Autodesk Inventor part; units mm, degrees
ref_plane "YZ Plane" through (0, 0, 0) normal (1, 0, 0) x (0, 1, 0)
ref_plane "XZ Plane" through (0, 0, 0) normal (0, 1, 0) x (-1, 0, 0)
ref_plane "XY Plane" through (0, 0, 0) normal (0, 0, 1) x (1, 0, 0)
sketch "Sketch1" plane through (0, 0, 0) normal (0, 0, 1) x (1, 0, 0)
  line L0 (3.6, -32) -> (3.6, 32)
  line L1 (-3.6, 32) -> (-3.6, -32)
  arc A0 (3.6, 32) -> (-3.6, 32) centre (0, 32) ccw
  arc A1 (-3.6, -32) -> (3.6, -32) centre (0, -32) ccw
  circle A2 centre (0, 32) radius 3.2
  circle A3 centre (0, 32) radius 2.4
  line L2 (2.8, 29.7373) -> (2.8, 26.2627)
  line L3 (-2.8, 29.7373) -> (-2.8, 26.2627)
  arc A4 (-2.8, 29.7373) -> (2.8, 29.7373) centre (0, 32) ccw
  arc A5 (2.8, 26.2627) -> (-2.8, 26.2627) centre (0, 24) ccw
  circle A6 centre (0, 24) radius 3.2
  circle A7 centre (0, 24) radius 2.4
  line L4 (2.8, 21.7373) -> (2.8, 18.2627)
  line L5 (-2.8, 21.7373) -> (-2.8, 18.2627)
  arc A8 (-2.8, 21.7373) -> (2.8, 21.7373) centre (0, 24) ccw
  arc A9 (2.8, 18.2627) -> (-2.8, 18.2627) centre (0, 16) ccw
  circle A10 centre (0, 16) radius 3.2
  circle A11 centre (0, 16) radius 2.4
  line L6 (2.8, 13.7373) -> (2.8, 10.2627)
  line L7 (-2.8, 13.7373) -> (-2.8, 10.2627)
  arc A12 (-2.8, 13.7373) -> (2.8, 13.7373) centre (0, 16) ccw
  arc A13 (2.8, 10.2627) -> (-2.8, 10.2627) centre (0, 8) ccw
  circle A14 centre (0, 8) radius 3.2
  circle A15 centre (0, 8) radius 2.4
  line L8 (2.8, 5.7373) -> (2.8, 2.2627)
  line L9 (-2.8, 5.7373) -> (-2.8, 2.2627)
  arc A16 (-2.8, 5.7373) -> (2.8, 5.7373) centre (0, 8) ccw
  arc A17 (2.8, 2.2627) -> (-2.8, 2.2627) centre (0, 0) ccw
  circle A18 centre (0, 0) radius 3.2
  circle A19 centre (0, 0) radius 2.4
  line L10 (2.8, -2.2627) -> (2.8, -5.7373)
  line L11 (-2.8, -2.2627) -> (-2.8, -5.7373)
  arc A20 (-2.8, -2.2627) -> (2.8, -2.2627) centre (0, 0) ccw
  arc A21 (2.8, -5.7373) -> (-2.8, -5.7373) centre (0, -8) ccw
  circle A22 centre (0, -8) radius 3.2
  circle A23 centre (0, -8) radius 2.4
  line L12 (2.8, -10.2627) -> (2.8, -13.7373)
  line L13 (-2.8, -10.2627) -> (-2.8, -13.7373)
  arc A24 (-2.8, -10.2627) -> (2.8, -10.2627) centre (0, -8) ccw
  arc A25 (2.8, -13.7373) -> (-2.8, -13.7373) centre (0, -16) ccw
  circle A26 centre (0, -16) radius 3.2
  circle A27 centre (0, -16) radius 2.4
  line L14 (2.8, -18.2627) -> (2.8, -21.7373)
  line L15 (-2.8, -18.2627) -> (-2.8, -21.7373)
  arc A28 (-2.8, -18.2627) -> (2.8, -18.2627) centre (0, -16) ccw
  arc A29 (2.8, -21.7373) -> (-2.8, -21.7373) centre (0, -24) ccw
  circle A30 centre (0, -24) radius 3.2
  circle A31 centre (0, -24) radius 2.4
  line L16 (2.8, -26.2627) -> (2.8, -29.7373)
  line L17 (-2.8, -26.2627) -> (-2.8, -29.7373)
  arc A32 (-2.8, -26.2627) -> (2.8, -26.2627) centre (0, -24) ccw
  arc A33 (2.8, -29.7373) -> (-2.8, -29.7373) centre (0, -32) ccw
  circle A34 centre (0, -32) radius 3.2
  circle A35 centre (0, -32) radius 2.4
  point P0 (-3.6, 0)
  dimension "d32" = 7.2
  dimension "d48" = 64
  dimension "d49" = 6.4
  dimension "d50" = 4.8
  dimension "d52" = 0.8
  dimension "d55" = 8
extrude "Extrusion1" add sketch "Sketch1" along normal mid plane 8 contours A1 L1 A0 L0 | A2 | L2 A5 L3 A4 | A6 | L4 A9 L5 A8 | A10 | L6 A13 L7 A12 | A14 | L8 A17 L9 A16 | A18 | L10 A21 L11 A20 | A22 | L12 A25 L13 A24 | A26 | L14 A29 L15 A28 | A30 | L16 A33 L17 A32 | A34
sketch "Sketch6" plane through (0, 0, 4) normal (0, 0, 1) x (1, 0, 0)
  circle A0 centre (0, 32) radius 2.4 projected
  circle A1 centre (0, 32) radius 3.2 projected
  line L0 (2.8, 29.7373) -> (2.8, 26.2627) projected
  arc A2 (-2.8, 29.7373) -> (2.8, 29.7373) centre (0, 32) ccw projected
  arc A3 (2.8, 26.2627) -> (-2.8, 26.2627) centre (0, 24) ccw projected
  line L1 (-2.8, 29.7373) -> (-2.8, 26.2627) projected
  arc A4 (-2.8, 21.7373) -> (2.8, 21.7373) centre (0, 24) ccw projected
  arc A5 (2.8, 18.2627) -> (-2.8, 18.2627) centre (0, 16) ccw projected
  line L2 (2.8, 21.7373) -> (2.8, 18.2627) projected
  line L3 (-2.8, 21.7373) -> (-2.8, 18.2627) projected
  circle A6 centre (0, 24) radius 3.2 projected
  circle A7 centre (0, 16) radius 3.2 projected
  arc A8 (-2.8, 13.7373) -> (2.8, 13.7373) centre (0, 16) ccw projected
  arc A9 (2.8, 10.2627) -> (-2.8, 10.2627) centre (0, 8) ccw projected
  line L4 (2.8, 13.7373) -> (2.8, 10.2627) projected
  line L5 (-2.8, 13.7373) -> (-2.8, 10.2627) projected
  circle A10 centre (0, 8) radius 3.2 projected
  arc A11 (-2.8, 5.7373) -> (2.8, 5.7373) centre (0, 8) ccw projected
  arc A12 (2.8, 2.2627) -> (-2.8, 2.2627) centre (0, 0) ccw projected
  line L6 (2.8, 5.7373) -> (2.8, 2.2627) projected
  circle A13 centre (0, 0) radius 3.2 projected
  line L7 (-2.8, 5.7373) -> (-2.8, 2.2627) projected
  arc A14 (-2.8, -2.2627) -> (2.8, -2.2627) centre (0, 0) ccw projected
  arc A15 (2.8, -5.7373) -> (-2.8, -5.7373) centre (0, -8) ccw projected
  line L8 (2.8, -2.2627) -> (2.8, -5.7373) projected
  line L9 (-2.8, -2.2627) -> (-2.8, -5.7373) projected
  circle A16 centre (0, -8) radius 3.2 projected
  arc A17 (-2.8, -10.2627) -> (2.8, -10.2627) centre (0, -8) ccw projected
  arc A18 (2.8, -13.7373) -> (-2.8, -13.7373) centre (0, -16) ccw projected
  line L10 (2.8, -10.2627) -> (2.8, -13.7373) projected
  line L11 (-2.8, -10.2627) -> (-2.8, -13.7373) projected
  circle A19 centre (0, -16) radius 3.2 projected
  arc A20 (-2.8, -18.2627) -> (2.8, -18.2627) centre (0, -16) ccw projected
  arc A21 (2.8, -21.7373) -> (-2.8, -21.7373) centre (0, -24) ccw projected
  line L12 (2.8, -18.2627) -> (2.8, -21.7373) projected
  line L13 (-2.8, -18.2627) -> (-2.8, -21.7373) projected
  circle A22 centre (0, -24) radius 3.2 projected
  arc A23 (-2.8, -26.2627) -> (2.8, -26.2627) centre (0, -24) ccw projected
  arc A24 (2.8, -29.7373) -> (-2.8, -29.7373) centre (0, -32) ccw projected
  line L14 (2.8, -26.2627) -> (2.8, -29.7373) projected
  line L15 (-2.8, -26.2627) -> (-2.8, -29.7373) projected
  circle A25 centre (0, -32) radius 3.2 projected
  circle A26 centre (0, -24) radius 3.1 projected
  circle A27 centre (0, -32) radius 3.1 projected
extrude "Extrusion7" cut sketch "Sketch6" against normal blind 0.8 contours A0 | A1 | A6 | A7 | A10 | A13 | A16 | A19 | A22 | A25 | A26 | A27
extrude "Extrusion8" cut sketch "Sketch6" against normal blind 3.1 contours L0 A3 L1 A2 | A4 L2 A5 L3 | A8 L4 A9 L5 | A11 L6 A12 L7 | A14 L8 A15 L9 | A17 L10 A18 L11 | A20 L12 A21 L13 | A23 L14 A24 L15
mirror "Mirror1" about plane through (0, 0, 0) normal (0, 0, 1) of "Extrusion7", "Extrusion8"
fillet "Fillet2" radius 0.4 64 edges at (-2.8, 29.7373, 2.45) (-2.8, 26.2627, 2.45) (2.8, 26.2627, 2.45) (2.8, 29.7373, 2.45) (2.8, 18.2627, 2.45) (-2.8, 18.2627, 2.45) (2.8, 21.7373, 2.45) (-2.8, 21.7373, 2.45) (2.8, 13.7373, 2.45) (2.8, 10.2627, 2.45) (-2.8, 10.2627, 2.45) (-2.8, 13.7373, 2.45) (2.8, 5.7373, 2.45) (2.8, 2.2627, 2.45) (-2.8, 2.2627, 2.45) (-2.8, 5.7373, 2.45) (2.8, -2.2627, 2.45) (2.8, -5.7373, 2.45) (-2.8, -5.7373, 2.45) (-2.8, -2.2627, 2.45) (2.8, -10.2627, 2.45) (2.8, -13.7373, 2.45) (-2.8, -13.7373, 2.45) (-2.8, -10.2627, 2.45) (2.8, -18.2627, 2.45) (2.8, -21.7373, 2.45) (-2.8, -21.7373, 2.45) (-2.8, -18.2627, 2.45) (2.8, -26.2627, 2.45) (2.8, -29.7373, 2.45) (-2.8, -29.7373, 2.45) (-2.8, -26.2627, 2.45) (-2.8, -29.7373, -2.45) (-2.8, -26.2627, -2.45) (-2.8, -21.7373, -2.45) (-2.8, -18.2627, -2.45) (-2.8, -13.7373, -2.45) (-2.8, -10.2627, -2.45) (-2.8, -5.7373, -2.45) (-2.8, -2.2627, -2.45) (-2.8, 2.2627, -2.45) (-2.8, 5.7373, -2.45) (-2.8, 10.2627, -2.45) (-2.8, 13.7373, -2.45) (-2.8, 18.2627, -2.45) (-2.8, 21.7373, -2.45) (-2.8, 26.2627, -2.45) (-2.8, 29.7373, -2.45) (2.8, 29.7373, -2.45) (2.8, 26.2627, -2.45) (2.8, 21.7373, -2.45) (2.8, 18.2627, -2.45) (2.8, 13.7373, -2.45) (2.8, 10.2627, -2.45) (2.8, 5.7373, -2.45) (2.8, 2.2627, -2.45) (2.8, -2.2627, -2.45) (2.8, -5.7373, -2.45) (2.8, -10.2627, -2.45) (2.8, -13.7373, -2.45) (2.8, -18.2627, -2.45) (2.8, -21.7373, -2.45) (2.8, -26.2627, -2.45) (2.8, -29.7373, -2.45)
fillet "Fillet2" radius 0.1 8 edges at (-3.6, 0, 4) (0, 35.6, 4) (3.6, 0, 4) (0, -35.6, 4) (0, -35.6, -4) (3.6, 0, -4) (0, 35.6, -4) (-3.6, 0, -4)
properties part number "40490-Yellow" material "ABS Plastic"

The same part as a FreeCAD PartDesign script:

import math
import FreeCAD as App
import Part
import Sketcher
from FreeCAD import Vector
Q = App.Units.Quantity


def edges_at(feature, points):
    """Names of the edges that pass closest to the given points."""
    edges = feature.Shape.Edges
    near = lambda p: min(range(len(edges)), key=lambda i: edges[i].distToShape(Part.Vertex(*p))[0])
    return sorted({f"Edge{near(p) + 1}" for p in points})

doc = App.newDocument("Part")
params = doc.addObject("Spreadsheet::Sheet", "Params")
for row, (alias, value) in enumerate([
    ("sketch1_diameter", "4.8 mm"),
    ("sketch1_radius", "3.6 mm"),
    ("sketch1_height", "64 mm"),
    ("pad1_length", "8 mm"),
    ("sketch2_diameter", "6.4 mm"),
    ("pocket1_length", "0.8 mm"),
    ("sketch3_radius", "3.6 mm"),
    ("pocket2_length", "3.1 mm"),
    ("fillet_radius", "0.4 mm"),
    ("fillet2_radius", "0.1 mm"),
], start=1):
    params.set(f"A{row}", alias)
    params.set(f"B{row}", "=" + value)
    params.setAlias(f"B{row}", alias)

body = doc.addObject("PartDesign::Body", "Body")

# Sketch on XY plane
sketch1 = body.newObject("Sketcher::SketchObject", "Sketch")
sketch1.AttachmentSupport = (doc.getObject("XY_Plane"), [""])
sketch1.MapMode = "FlatFace"
sketch1.addGeometry([
    Part.ArcOfCircle(Part.Circle(Vector(0, -32, 0), Vector(0, 0, 1), 3.6), math.radians(180), math.radians(360)),  # 0
    Part.LineSegment(Vector(3.6, -32, 0), Vector(3.6, 32, 0)),  # 1
    Part.ArcOfCircle(Part.Circle(Vector(0, 32, 0), Vector(0, 0, 1), 3.6), math.radians(0), math.radians(180)),  # 2
    Part.LineSegment(Vector(-3.6, 32, 0), Vector(-3.6, -32, 0)),  # 3
    Part.Circle(Vector(0, -32, 0), Vector(0, 0, 1), 2.4),  # 4
    Part.Circle(Vector(0, -24, 0), Vector(0, 0, 1), 2.4),  # 5
    Part.Circle(Vector(0, -16, 0), Vector(0, 0, 1), 2.4),  # 6
    Part.Circle(Vector(0, -8, 0), Vector(0, 0, 1), 2.4),  # 7
    Part.Circle(Vector(0, 0, 0), Vector(0, 0, 1), 2.4),  # 8
    Part.Circle(Vector(0, 8, 0), Vector(0, 0, 1), 2.4),  # 9
    Part.Circle(Vector(0, 16, 0), Vector(0, 0, 1), 2.4),  # 10
    Part.Circle(Vector(0, 24, 0), Vector(0, 0, 1), 2.4),  # 11
    Part.Circle(Vector(0, 32, 0), Vector(0, 0, 1), 2.4),  # 12
], False)
sketch1.addConstraint([
    Sketcher.Constraint("Tangent", 0, 2, 1, 1),
    Sketcher.Constraint("Tangent", 1, 2, 2, 1),
    Sketcher.Constraint("Tangent", 2, 2, 3, 1),
    Sketcher.Constraint("Tangent", 3, 2, 0, 1),
    Sketcher.Constraint("Vertical", 1),
    Sketcher.Constraint("Vertical", 3),
    Sketcher.Constraint("Coincident", 8, 3, -1, 1),
    Sketcher.Constraint("Coincident", 4, 3, 0, 3),
    Sketcher.Constraint("Coincident", 12, 3, 2, 3),
    Sketcher.Constraint("Equal", 4, 5),
    Sketcher.Constraint("Equal", 5, 6),
    Sketcher.Constraint("Equal", 6, 7),
    Sketcher.Constraint("Equal", 7, 8),
    Sketcher.Constraint("Equal", 8, 9),
    Sketcher.Constraint("Equal", 9, 10),
    Sketcher.Constraint("Equal", 10, 11),
    Sketcher.Constraint("Equal", 11, 12),
    Sketcher.Constraint("Symmetric", 0, 3, 2, 3, -1, 1),
    Sketcher.Constraint("Symmetric", 7, 3, 9, 3, -1, 1),
    Sketcher.Constraint("Symmetric", 6, 3, 10, 3, -1, 1),
    Sketcher.Constraint("Symmetric", 5, 3, 11, 3, -1, 1),
    Sketcher.Constraint("PointOnObject", 5, 3, -2),
    Sketcher.Constraint("PointOnObject", 6, 3, -2),
    Sketcher.Constraint("PointOnObject", 7, 3, -2),
    Sketcher.Constraint("Diameter", 4, Q("4.8 mm")),
    Sketcher.Constraint("Radius", 0, Q("3.6 mm")),
    Sketcher.Constraint("DistanceY", 1, 1, 1, 2, Q("64 mm")),
    Sketcher.Constraint("DistanceY", 7, 3, -1, 1, Q("8 mm")),
    Sketcher.Constraint("DistanceY", 0, 3, 5, 3, Q("8 mm")),
    Sketcher.Constraint("DistanceY", 5, 3, 6, 3, Q("8 mm")),
])
sketch1.setExpression("Constraints[24]", "Params.sketch1_diameter")
sketch1.setExpression("Constraints[25]", "Params.sketch1_radius")
sketch1.setExpression("Constraints[26]", "Params.sketch1_height")
pad1 = body.newObject("PartDesign::Pad", "Pad")
pad1.Profile = sketch1
pad1.setExpression("Length", "Params.pad1_length")
pad1.Midplane = True

# Sketch on XY plane
sketch2 = body.newObject("Sketcher::SketchObject", "Sketch001")
sketch2.AttachmentSupport = (doc.getObject("XY_Plane"), [""])
sketch2.MapMode = "FlatFace"
sketch2.AttachmentOffset = App.Placement(Vector(0, 0, 4), App.Rotation())
sketch2.addGeometry([
    Part.Circle(Vector(0, 32, 0), Vector(0, 0, 1), 3.2),  # 0
    Part.Circle(Vector(0, 24, 0), Vector(0, 0, 1), 3.2),  # 1
    Part.Circle(Vector(0, 16, 0), Vector(0, 0, 1), 3.2),  # 2
    Part.Circle(Vector(0, 8, 0), Vector(0, 0, 1), 3.2),  # 3
    Part.Circle(Vector(0, 0, 0), Vector(0, 0, 1), 3.2),  # 4
    Part.Circle(Vector(0, -8, 0), Vector(0, 0, 1), 3.2),  # 5
    Part.Circle(Vector(0, -16, 0), Vector(0, 0, 1), 3.2),  # 6
    Part.Circle(Vector(0, -24, 0), Vector(0, 0, 1), 3.2),  # 7
    Part.Circle(Vector(0, -32, 0), Vector(0, 0, 1), 3.2),  # 8
], False)
sketch2.addConstraint([
    Sketcher.Constraint("Coincident", 4, 3, -1, 1),
    Sketcher.Constraint("Equal", 0, 1),
    Sketcher.Constraint("Equal", 1, 2),
    Sketcher.Constraint("Equal", 2, 3),
    Sketcher.Constraint("Equal", 3, 4),
    Sketcher.Constraint("Equal", 4, 5),
    Sketcher.Constraint("Equal", 5, 6),
    Sketcher.Constraint("Equal", 6, 7),
    Sketcher.Constraint("Equal", 7, 8),
    Sketcher.Constraint("Symmetric", 3, 3, 5, 3, -1, 1),
    Sketcher.Constraint("Symmetric", 2, 3, 6, 3, -1, 1),
    Sketcher.Constraint("Symmetric", 1, 3, 7, 3, -1, 1),
    Sketcher.Constraint("Symmetric", 0, 3, 8, 3, -1, 1),
    Sketcher.Constraint("PointOnObject", 0, 3, -2),
    Sketcher.Constraint("PointOnObject", 1, 3, -2),
    Sketcher.Constraint("PointOnObject", 2, 3, -2),
    Sketcher.Constraint("PointOnObject", 3, 3, -2),
    Sketcher.Constraint("Diameter", 0, Q("6.4 mm")),
    Sketcher.Constraint("DistanceY", -1, 1, 0, 3, Q("32 mm")),
    Sketcher.Constraint("DistanceY", -1, 1, 1, 3, Q("24 mm")),
    Sketcher.Constraint("DistanceY", -1, 1, 2, 3, Q("16 mm")),
    Sketcher.Constraint("DistanceY", -1, 1, 3, 3, Q("8 mm")),
])
sketch2.setExpression("Constraints[17]", "Params.sketch2_diameter")
pocket1 = body.newObject("PartDesign::Pocket", "Pocket")
pocket1.Profile = sketch2
pocket1.setExpression("Length", "Params.pocket1_length")

# Sketch on XY plane
sketch3 = body.newObject("Sketcher::SketchObject", "Sketch002")
sketch3.AttachmentSupport = (doc.getObject("XY_Plane"), [""])
sketch3.MapMode = "FlatFace"
sketch3.AttachmentOffset = App.Placement(Vector(0, 0, 4), App.Rotation())
sketch3.addGeometry([
    Part.LineSegment(Vector(2.8, 26.3, 0), Vector(2.8, 29.7, 0)),  # 0
    Part.ArcOfCircle(Part.Circle(Vector(0, 32, 0), Vector(0, 0, 1), 3.6), math.radians(-141), math.radians(-39)),  # 1
    Part.LineSegment(Vector(-2.8, 29.7, 0), Vector(-2.8, 26.3, 0)),  # 2
    Part.ArcOfCircle(Part.Circle(Vector(0, 24, 0), Vector(0, 0, 1), 3.6), math.radians(39), math.radians(141)),  # 3
    Part.ArcOfCircle(Part.Circle(Vector(0, 24, 0), Vector(0, 0, 1), 3.6), math.radians(-141), math.radians(-39)),  # 4
    Part.LineSegment(Vector(-2.8, 21.7, 0), Vector(-2.8, 18.3, 0)),  # 5
    Part.ArcOfCircle(Part.Circle(Vector(0, 16, 0), Vector(0, 0, 1), 3.6), math.radians(39), math.radians(141)),  # 6
    Part.LineSegment(Vector(2.8, 18.3, 0), Vector(2.8, 21.7, 0)),  # 7
    Part.ArcOfCircle(Part.Circle(Vector(0, 16, 0), Vector(0, 0, 1), 3.6), math.radians(-141), math.radians(-39)),  # 8
    Part.LineSegment(Vector(-2.8, 13.7, 0), Vector(-2.8, 10.3, 0)),  # 9
    Part.ArcOfCircle(Part.Circle(Vector(0, 8, 0), Vector(0, 0, 1), 3.6), math.radians(39), math.radians(141)),  # 10
    Part.LineSegment(Vector(2.8, 10.3, 0), Vector(2.8, 13.7, 0)),  # 11
    Part.ArcOfCircle(Part.Circle(Vector(0, 8, 0), Vector(0, 0, 1), 3.6), math.radians(-141), math.radians(-39)),  # 12
    Part.LineSegment(Vector(-2.8, 5.7, 0), Vector(-2.8, 2.3, 0)),  # 13
    Part.ArcOfCircle(Part.Circle(Vector(0, 0, 0), Vector(0, 0, 1), 3.6), math.radians(39), math.radians(141)),  # 14
    Part.LineSegment(Vector(2.8, 2.3, 0), Vector(2.8, 5.7, 0)),  # 15
    Part.ArcOfCircle(Part.Circle(Vector(0, 0, 0), Vector(0, 0, 1), 3.6), math.radians(-141), math.radians(-39)),  # 16
    Part.LineSegment(Vector(-2.8, -2.3, 0), Vector(-2.8, -5.7, 0)),  # 17
    Part.ArcOfCircle(Part.Circle(Vector(0, -8, 0), Vector(0, 0, 1), 3.6), math.radians(39), math.radians(141)),  # 18
    Part.LineSegment(Vector(2.8, -5.7, 0), Vector(2.8, -2.3, 0)),  # 19
    Part.ArcOfCircle(Part.Circle(Vector(0, -8, 0), Vector(0, 0, 1), 3.6), math.radians(-141), math.radians(-39)),  # 20
    Part.LineSegment(Vector(-2.8, -10.3, 0), Vector(-2.8, -13.7, 0)),  # 21
    Part.ArcOfCircle(Part.Circle(Vector(0, -16, 0), Vector(0, 0, 1), 3.6), math.radians(39), math.radians(141)),  # 22
    Part.LineSegment(Vector(2.8, -13.7, 0), Vector(2.8, -10.3, 0)),  # 23
    Part.ArcOfCircle(Part.Circle(Vector(0, -16, 0), Vector(0, 0, 1), 3.6), math.radians(-141), math.radians(-39)),  # 24
    Part.LineSegment(Vector(-2.8, -18.3, 0), Vector(-2.8, -21.7, 0)),  # 25
    Part.ArcOfCircle(Part.Circle(Vector(0, -24, 0), Vector(0, 0, 1), 3.6), math.radians(39), math.radians(141)),  # 26
    Part.LineSegment(Vector(2.8, -21.7, 0), Vector(2.8, -18.3, 0)),  # 27
    Part.ArcOfCircle(Part.Circle(Vector(0, -24, 0), Vector(0, 0, 1), 3.6), math.radians(-141), math.radians(-39)),  # 28
    Part.LineSegment(Vector(-2.8, -26.3, 0), Vector(-2.8, -29.7, 0)),  # 29
    Part.ArcOfCircle(Part.Circle(Vector(0, -32, 0), Vector(0, 0, 1), 3.6), math.radians(39), math.radians(141)),  # 30
    Part.LineSegment(Vector(2.8, -29.7, 0), Vector(2.8, -26.3, 0)),  # 31
], False)
sketch3.addConstraint([
    Sketcher.Constraint("Coincident", 0, 2, 1, 2),
    Sketcher.Constraint("Coincident", 1, 1, 2, 1),
    Sketcher.Constraint("Coincident", 2, 2, 3, 2),
    Sketcher.Constraint("Coincident", 3, 1, 0, 1),
    Sketcher.Constraint("Coincident", 4, 1, 5, 1),
    Sketcher.Constraint("Coincident", 5, 2, 6, 2),
    Sketcher.Constraint("Coincident", 6, 1, 7, 1),
    Sketcher.Constraint("Coincident", 7, 2, 4, 2),
    Sketcher.Constraint("Coincident", 8, 1, 9, 1),
    Sketcher.Constraint("Coincident", 9, 2, 10, 2),
    Sketcher.Constraint("Coincident", 10, 1, 11, 1),
    Sketcher.Constraint("Coincident", 11, 2, 8, 2),
    Sketcher.Constraint("Coincident", 12, 1, 13, 1),
    Sketcher.Constraint("Coincident", 13, 2, 14, 2),
    Sketcher.Constraint("Coincident", 14, 1, 15, 1),
    Sketcher.Constraint("Coincident", 15, 2, 12, 2),
    Sketcher.Constraint("Coincident", 16, 1, 17, 1),
    Sketcher.Constraint("Coincident", 17, 2, 18, 2),
    Sketcher.Constraint("Coincident", 18, 1, 19, 1),
    Sketcher.Constraint("Coincident", 19, 2, 16, 2),
    Sketcher.Constraint("Coincident", 20, 1, 21, 1),
    Sketcher.Constraint("Coincident", 21, 2, 22, 2),
    Sketcher.Constraint("Coincident", 22, 1, 23, 1),
    Sketcher.Constraint("Coincident", 23, 2, 20, 2),
    Sketcher.Constraint("Coincident", 24, 1, 25, 1),
    Sketcher.Constraint("Coincident", 25, 2, 26, 2),
    Sketcher.Constraint("Coincident", 26, 1, 27, 1),
    Sketcher.Constraint("Coincident", 27, 2, 24, 2),
    Sketcher.Constraint("Coincident", 28, 1, 29, 1),
    Sketcher.Constraint("Coincident", 29, 2, 30, 2),
    Sketcher.Constraint("Coincident", 30, 1, 31, 1),
    Sketcher.Constraint("Coincident", 31, 2, 28, 2),
    Sketcher.Constraint("Vertical", 0),
    Sketcher.Constraint("Vertical", 2),
    Sketcher.Constraint("Vertical", 5),
    Sketcher.Constraint("Vertical", 7),
    Sketcher.Constraint("Vertical", 9),
    Sketcher.Constraint("Vertical", 11),
    Sketcher.Constraint("Vertical", 13),
    Sketcher.Constraint("Vertical", 15),
    Sketcher.Constraint("Vertical", 17),
    Sketcher.Constraint("Vertical", 19),
    Sketcher.Constraint("Vertical", 21),
    Sketcher.Constraint("Vertical", 23),
    Sketcher.Constraint("Vertical", 25),
    Sketcher.Constraint("Vertical", 27),
    Sketcher.Constraint("Vertical", 29),
    Sketcher.Constraint("Vertical", 31),
    Sketcher.Constraint("Coincident", 14, 3, -1, 1),
    Sketcher.Constraint("Coincident", 16, 3, -1, 1),
    Sketcher.Constraint("Coincident", 4, 3, 3, 3),
    Sketcher.Constraint("Coincident", 8, 3, 6, 3),
    Sketcher.Constraint("Coincident", 12, 3, 10, 3),
    Sketcher.Constraint("Coincident", 20, 3, 18, 3),
    Sketcher.Constraint("Coincident", 24, 3, 22, 3),
    Sketcher.Constraint("Coincident", 28, 3, 26, 3),
    Sketcher.Constraint("Equal", 1, 3),
    Sketcher.Constraint("Equal", 3, 4),
    Sketcher.Constraint("Equal", 4, 6),
    Sketcher.Constraint("Equal", 6, 8),
    Sketcher.Constraint("Equal", 8, 10),
    Sketcher.Constraint("Equal", 10, 12),
    Sketcher.Constraint("Equal", 12, 14),
    Sketcher.Constraint("Equal", 14, 16),
    Sketcher.Constraint("Equal", 16, 18),
    Sketcher.Constraint("Equal", 18, 20),
    Sketcher.Constraint("Equal", 20, 22),
    Sketcher.Constraint("Equal", 22, 24),
    Sketcher.Constraint("Equal", 24, 26),
    Sketcher.Constraint("Equal", 26, 28),
    Sketcher.Constraint("Equal", 28, 30),
    Sketcher.Constraint("Symmetric", 10, 3, 18, 3, -1, 1),
    Sketcher.Constraint("Symmetric", 6, 3, 22, 3, -1, 1),
    Sketcher.Constraint("Symmetric", 3, 3, 26, 3, -1, 1),
    Sketcher.Constraint("Symmetric", 1, 3, 30, 3, -1, 1),
    Sketcher.Constraint("Symmetric", 0, 2, 1, 1, -2),
    Sketcher.Constraint("Symmetric", 5, 2, 6, 1, -2),
    Sketcher.Constraint("Symmetric", 9, 2, 10, 1, -2),
    Sketcher.Constraint("Symmetric", 25, 2, 26, 1, -2),
    Sketcher.Constraint("Horizontal", 13, 2, 14, 1),
    Sketcher.Constraint("Horizontal", 17, 2, 18, 1),
    Sketcher.Constraint("Horizontal", 21, 2, 22, 1),
    Sketcher.Constraint("Horizontal", 29, 2, 30, 1),
    Sketcher.Constraint("Vertical", 2, 2, 4, 1),
    Sketcher.Constraint("Vertical", 5, 2, 8, 1),
    Sketcher.Constraint("Vertical", 9, 2, 12, 1),
    Sketcher.Constraint("Vertical", 13, 2, 16, 1),
    Sketcher.Constraint("Vertical", 17, 2, 20, 1),
    Sketcher.Constraint("Vertical", 21, 2, 24, 1),
    Sketcher.Constraint("Vertical", 25, 2, 28, 1),
    Sketcher.Constraint("Equal", 2, 5),
    Sketcher.Constraint("Equal", 7, 9),
    Sketcher.Constraint("Equal", 11, 13),
    Sketcher.Constraint("Radius", 1, Q("3.6 mm")),
    Sketcher.Constraint("DistanceY", -1, 1, 1, 3, Q("32 mm")),
    Sketcher.Constraint("DistanceX", -1, 1, 0, 2, Q("2.8 mm")),
])
sketch3.setExpression("Constraints[93]", "Params.sketch3_radius")
pocket2 = body.newObject("PartDesign::Pocket", "Pocket001")
pocket2.Profile = sketch3
pocket2.setExpression("Length", "Params.pocket2_length")
doc.recompute()

mirrored = body.newObject("PartDesign::Mirrored", "Mirrored")
mirrored.Originals = [pocket1, pocket2]
mirrored.MirrorPlane = (doc.getObject("XY_Plane"), [""])
body.Tip = mirrored
doc.recompute()

fillet = body.newObject("PartDesign::Fillet", "Fillet")
fillet.Base = (mirrored, edges_at(mirrored, [
    (-2.8, 29.737, 2.45),
    (-2.8, 26.263, 2.45),
    (2.8, 26.263, 2.45),
    (2.8, 29.737, 2.45),
    (2.8, 18.263, 2.45),
    (-2.8, 18.263, 2.45),
    (2.8, 21.737, 2.45),
    (-2.8, 21.737, 2.45),
    (2.8, 13.737, 2.45),
    (2.8, 10.263, 2.45),
    (-2.8, 10.263, 2.45),
    (-2.8, 13.737, 2.45),
    (2.8, 5.737, 2.45),
    (2.8, 2.263, 2.45),
    (-2.8, 2.263, 2.45),
    (-2.8, 5.737, 2.45),
    (2.8, -2.263, 2.45),
    (2.8, -5.737, 2.45),
    (-2.8, -5.737, 2.45),
    (-2.8, -2.263, 2.45),
    (2.8, -10.263, 2.45),
    (2.8, -13.737, 2.45),
    (-2.8, -13.737, 2.45),
    (-2.8, -10.263, 2.45),
    (2.8, -18.263, 2.45),
    (2.8, -21.737, 2.45),
    (-2.8, -21.737, 2.45),
    (-2.8, -18.263, 2.45),
    (2.8, -26.263, 2.45),
    (2.8, -29.737, 2.45),
    (-2.8, -29.737, 2.45),
    (-2.8, -26.263, 2.45),
    (-2.8, -29.737, -2.45),
    (-2.8, -26.263, -2.45),
    (-2.8, -21.737, -2.45),
    (-2.8, -18.263, -2.45),
    (-2.8, -13.737, -2.45),
    (-2.8, -10.263, -2.45),
    (-2.8, -5.737, -2.45),
    (-2.8, -2.263, -2.45),
    (-2.8, 2.263, -2.45),
    (-2.8, 5.737, -2.45),
    (-2.8, 10.263, -2.45),
    (-2.8, 13.737, -2.45),
    (-2.8, 18.263, -2.45),
    (-2.8, 21.737, -2.45),
    (-2.8, 26.263, -2.45),
    (-2.8, 29.737, -2.45),
    (2.8, 29.737, -2.45),
    (2.8, 26.263, -2.45),
    (2.8, 21.737, -2.45),
    (2.8, 18.263, -2.45),
    (2.8, 13.737, -2.45),
    (2.8, 10.263, -2.45),
    (2.8, 5.737, -2.45),
    (2.8, 2.263, -2.45),
    (2.8, -2.263, -2.45),
    (2.8, -5.737, -2.45),
    (2.8, -10.263, -2.45),
    (2.8, -13.737, -2.45),
    (2.8, -18.263, -2.45),
    (2.8, -21.737, -2.45),
    (2.8, -26.263, -2.45),
    (2.8, -29.737, -2.45),
]))
fillet.setExpression("Radius", "Params.fillet_radius")
doc.recompute()

fillet2 = body.newObject("PartDesign::Fillet", "Fillet001")
fillet2.Base = (fillet, edges_at(fillet, [
    (-3.6, 0, 4),
    (0, 35.6, 4),
    (3.6, 0, 4),
    (0, -35.6, 4),
    (0, -35.6, -4),
    (3.6, 0, -4),
    (0, 35.6, -4),
    (-3.6, 0, -4),
]))
fillet2.setExpression("Radius", "Params.fillet2_radius")

doc.recompute()
